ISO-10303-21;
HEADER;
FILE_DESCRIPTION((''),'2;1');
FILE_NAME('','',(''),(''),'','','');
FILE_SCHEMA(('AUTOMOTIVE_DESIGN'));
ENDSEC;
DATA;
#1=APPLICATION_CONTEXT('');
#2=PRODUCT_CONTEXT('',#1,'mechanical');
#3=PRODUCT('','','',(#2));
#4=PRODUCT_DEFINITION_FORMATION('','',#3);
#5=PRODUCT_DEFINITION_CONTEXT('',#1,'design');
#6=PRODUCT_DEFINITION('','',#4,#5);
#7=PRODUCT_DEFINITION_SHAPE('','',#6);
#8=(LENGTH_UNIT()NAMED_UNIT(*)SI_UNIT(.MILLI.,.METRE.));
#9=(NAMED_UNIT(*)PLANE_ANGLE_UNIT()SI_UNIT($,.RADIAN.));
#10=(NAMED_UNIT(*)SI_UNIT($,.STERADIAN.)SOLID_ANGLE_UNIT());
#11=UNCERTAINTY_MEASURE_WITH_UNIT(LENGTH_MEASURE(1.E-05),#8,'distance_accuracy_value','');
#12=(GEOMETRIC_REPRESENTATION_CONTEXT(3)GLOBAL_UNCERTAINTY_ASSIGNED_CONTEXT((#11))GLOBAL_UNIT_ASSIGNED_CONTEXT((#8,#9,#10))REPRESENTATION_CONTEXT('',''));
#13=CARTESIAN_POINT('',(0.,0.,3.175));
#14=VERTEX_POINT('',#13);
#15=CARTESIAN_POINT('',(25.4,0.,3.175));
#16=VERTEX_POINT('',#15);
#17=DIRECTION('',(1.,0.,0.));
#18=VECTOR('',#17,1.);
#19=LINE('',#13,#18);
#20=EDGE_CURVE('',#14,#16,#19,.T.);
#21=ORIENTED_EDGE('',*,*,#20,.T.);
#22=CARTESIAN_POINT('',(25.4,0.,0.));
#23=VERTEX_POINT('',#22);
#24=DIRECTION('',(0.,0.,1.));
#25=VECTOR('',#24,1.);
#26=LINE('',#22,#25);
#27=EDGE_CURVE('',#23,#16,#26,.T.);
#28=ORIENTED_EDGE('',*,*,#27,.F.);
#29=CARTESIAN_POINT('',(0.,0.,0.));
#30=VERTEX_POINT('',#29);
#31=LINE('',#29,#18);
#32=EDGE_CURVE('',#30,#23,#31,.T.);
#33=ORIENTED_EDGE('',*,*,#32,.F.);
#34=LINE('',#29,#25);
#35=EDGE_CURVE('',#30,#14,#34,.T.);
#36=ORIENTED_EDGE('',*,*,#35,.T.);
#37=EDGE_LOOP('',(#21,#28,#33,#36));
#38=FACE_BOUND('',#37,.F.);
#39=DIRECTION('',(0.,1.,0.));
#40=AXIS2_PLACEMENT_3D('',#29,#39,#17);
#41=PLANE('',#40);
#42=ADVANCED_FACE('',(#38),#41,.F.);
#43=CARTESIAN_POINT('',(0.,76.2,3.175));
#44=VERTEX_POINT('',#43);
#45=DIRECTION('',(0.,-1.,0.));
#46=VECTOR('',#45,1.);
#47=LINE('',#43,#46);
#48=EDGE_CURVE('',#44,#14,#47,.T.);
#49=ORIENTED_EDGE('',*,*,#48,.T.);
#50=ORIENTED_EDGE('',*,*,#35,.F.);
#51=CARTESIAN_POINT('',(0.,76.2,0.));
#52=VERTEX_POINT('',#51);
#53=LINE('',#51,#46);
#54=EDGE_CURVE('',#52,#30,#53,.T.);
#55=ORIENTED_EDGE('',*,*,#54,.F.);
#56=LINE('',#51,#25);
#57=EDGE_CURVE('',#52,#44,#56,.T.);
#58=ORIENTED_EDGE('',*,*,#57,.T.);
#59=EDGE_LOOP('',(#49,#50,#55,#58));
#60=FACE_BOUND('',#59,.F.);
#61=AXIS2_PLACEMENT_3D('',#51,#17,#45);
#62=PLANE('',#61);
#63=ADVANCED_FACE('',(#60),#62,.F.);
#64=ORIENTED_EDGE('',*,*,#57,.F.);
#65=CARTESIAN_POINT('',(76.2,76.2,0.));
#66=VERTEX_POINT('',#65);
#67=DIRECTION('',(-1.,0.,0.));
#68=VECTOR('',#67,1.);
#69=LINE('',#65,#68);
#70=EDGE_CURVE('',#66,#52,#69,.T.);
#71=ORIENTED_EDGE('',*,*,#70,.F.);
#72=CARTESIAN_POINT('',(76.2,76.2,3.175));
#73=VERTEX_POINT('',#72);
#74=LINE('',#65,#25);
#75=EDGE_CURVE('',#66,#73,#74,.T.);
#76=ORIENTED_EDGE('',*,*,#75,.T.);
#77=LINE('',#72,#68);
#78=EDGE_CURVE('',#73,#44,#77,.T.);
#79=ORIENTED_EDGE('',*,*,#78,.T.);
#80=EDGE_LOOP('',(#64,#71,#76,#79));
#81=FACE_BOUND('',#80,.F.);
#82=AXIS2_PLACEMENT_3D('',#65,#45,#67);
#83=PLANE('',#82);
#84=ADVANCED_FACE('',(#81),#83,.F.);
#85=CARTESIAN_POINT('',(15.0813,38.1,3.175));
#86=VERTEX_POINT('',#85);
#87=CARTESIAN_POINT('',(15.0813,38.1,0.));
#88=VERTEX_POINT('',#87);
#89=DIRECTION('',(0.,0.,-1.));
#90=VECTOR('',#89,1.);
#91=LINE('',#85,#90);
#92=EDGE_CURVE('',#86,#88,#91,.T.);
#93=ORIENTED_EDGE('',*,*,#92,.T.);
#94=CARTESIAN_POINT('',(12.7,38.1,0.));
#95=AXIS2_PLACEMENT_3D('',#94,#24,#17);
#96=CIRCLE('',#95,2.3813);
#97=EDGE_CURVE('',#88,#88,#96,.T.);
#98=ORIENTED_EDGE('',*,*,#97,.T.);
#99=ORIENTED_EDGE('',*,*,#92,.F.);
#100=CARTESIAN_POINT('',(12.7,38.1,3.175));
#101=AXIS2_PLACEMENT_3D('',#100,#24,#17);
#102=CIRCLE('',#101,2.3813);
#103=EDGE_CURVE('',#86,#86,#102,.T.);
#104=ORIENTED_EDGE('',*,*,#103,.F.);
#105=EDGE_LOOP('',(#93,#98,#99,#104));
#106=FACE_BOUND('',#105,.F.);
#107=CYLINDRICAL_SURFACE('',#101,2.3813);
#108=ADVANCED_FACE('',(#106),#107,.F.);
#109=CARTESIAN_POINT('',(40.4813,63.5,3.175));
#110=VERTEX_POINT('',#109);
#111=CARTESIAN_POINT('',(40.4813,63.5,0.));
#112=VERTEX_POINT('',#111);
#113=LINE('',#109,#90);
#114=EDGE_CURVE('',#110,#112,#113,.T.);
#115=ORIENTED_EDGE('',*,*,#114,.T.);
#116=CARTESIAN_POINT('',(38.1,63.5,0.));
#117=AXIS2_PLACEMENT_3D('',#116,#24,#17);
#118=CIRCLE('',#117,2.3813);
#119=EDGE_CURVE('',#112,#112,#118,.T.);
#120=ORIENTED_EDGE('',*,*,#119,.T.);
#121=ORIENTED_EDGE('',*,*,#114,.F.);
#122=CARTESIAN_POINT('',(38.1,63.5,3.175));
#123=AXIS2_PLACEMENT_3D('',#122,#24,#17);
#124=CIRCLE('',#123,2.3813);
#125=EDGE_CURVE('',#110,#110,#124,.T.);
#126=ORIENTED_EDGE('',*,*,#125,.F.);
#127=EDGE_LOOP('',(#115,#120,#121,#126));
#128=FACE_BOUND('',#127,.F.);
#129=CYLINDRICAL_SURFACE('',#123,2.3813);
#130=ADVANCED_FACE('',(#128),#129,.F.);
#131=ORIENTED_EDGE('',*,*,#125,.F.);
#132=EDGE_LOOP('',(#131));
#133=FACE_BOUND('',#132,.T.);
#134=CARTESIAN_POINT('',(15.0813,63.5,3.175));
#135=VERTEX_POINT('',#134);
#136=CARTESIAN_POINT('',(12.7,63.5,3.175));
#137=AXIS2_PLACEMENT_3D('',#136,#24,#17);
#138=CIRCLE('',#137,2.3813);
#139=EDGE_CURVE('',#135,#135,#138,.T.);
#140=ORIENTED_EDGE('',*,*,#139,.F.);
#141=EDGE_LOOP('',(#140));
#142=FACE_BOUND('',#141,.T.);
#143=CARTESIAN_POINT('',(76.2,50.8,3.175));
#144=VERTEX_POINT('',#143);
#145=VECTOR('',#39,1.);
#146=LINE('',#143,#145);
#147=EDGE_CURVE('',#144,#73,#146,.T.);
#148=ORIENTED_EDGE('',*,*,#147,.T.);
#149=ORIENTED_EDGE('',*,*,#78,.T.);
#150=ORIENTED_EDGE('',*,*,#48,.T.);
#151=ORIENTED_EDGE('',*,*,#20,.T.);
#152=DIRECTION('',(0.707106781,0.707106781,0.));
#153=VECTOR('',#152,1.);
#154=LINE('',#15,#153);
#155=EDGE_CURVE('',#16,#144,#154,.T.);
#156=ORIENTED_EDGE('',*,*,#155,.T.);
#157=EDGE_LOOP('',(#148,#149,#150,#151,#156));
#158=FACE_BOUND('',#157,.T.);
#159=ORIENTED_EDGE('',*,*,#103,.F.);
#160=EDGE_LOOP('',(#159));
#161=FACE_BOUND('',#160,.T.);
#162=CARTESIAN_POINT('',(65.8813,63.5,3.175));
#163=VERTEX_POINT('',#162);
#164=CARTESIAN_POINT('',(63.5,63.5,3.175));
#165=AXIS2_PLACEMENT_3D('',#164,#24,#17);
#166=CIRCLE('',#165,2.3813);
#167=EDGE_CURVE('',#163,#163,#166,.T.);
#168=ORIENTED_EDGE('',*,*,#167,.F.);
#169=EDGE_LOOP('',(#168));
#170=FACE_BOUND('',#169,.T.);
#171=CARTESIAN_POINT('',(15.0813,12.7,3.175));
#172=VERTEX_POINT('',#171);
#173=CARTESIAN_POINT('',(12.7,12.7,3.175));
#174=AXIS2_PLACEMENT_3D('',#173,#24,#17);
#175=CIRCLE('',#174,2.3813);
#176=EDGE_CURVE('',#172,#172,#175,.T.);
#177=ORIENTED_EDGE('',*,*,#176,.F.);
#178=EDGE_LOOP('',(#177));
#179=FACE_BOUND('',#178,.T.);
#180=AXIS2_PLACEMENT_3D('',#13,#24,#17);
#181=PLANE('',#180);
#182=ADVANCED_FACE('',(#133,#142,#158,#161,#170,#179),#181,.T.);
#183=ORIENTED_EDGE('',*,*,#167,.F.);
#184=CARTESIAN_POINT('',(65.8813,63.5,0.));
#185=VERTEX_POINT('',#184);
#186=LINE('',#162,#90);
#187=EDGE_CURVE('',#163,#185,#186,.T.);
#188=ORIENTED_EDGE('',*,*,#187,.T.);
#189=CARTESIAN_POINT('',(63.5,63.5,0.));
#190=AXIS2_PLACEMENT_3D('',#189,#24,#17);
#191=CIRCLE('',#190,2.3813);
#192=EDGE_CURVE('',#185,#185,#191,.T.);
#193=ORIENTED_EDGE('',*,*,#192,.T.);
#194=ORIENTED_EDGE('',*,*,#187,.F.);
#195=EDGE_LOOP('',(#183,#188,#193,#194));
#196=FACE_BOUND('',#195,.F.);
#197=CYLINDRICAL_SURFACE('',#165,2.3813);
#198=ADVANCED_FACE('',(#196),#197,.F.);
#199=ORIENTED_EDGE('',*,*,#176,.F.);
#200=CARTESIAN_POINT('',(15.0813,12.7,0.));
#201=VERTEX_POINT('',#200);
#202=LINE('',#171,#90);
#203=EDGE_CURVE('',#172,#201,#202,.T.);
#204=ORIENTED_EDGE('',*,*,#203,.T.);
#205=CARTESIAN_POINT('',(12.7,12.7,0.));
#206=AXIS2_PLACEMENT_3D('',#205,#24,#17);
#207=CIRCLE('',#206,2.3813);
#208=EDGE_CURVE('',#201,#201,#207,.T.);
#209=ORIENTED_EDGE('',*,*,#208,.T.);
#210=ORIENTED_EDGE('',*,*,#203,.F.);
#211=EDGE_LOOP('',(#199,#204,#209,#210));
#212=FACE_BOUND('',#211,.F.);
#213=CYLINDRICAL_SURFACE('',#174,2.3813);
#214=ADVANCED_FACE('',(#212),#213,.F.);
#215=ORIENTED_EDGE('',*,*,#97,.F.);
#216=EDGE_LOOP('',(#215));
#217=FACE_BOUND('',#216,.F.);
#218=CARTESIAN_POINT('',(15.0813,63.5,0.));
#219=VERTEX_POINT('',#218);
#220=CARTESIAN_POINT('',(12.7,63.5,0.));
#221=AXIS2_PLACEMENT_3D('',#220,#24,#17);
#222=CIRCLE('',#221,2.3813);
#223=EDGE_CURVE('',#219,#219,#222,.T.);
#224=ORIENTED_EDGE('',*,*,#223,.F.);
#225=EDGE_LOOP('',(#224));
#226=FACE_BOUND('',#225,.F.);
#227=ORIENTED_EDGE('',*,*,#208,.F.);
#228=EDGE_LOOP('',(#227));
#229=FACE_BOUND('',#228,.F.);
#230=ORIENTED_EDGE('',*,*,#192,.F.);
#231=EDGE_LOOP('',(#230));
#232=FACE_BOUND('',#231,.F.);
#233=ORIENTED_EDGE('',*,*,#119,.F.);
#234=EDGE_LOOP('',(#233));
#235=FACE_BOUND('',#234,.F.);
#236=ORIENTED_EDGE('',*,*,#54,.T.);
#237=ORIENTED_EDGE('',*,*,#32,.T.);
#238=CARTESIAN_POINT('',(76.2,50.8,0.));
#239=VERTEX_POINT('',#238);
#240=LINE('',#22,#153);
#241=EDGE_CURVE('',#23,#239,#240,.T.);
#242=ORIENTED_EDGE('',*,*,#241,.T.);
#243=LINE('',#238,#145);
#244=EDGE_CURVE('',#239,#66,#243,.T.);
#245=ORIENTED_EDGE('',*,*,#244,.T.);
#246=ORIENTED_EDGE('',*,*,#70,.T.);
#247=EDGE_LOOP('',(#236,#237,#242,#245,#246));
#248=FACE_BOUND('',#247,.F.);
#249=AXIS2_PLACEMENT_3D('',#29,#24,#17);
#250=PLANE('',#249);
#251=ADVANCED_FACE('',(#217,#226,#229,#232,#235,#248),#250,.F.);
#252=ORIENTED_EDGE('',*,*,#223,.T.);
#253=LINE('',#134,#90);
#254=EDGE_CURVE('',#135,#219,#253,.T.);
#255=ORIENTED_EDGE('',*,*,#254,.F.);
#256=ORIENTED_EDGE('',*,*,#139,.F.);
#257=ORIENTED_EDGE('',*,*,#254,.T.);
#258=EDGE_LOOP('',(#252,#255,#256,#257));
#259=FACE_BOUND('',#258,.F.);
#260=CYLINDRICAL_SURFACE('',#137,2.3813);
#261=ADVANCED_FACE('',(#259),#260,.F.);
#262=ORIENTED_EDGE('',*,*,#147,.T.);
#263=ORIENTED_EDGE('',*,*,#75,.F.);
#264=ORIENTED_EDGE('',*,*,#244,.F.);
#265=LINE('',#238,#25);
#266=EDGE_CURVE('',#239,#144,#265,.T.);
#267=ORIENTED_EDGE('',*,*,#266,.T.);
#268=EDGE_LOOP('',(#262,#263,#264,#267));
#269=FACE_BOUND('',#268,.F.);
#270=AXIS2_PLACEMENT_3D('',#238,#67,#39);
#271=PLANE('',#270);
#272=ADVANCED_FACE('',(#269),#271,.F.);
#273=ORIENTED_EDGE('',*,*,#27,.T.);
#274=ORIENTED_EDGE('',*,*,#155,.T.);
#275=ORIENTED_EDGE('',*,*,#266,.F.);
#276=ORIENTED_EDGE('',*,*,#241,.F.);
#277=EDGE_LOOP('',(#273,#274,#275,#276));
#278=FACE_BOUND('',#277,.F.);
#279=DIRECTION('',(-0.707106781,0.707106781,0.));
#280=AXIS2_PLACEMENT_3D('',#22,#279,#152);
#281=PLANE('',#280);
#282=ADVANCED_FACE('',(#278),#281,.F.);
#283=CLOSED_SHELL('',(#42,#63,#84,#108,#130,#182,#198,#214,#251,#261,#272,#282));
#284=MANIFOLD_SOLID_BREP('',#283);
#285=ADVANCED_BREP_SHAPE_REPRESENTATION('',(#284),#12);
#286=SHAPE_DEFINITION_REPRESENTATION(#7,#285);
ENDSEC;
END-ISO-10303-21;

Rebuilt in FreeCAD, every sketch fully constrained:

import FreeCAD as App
import Part
import Sketcher
Q = App.Units.Quantity

doc = App.newDocument("Part")
params = doc.addObject("Spreadsheet::Sheet", "Params")
for row, (alias, value) in enumerate([
    ("sketch1_width", "1 in"),
    ("sketch1_width2", "3 in"),
    ("pad1_length", "0.125 in"),
    ("sketch2_diameter", "0.1875 in"),
    ("linearpattern_pitch", "1 in"),
    ("linearpattern2_pitch", "1 in"),
], start=1):
    params.set(f"A{row}", alias)
    params.set(f"B{row}", "=" + value)
    params.setAlias(f"B{row}", alias)

body = doc.addObject("PartDesign::Body", "Body")

# Sketch on XY plane
sketch1 = body.newObject("Sketcher::SketchObject", "Sketch")
sketch1.AttachmentSupport = (doc.getObject("XY_Plane"), [""])
sketch1.MapMode = "FlatFace"
sketch1.addGeometry([
    Part.LineSegment(App.Vector(0, 76, 0), App.Vector(0, 0, 0)),  # 0
    Part.LineSegment(App.Vector(0, 0, 0), App.Vector(25, 0, 0)),  # 1
    Part.LineSegment(App.Vector(25, 0, 0), App.Vector(76, 51, 0)),  # 2
    Part.LineSegment(App.Vector(76, 51, 0), App.Vector(76, 76, 0)),  # 3
    Part.LineSegment(App.Vector(76, 76, 0), App.Vector(0, 76, 0)),  # 4
], False)
sketch1.addConstraint([
    Sketcher.Constraint("Coincident", 0, 2, 1, 1),
    Sketcher.Constraint("Coincident", 1, 2, 2, 1),
    Sketcher.Constraint("Coincident", 2, 2, 3, 1),
    Sketcher.Constraint("Coincident", 3, 2, 4, 1),
    Sketcher.Constraint("Coincident", 4, 2, 0, 1),
    Sketcher.Constraint("Vertical", 0),
    Sketcher.Constraint("Horizontal", 1),
    Sketcher.Constraint("Vertical", 3),
    Sketcher.Constraint("Horizontal", 4),
    Sketcher.Constraint("Coincident", 0, 2, -1, 1),
    Sketcher.Constraint("Equal", 4, 0),
    Sketcher.Constraint("Equal", 1, 3),
    Sketcher.Constraint("DistanceX", 1, 1, 1, 2, Q("1 in")),
    Sketcher.Constraint("DistanceX", 4, 2, 4, 1, Q("3 in")),
])
sketch1.setExpression("Constraints[12]", "Params.sketch1_width")
sketch1.setExpression("Constraints[13]", "Params.sketch1_width2")
pad1 = body.newObject("PartDesign::Pad", "Pad")
pad1.Profile = sketch1
pad1.setExpression("Length", "Params.pad1_length")

# Sketch on XY plane
sketch2 = body.newObject("Sketcher::SketchObject", "Sketch001")
sketch2.AttachmentSupport = (doc.getObject("XY_Plane"), [""])
sketch2.MapMode = "FlatFace"
sketch2.AttachmentOffset = App.Placement(App.Vector(0, 0, 0.125 * 25.4), App.Rotation())
sketch2.addGeometry(Part.Circle(App.Vector(12.7, 63.5, 0), App.Vector(0, 0, 1), 2.4), False)
sketch2.addConstraint([
    Sketcher.Constraint("Diameter", 0, Q("0.1875 in")),
    Sketcher.Constraint("DistanceX", -1, 1, 0, 3, Q("0.5 in")),
    Sketcher.Constraint("DistanceY", -1, 1, 0, 3, Q("2.5 in")),
])
sketch2.setExpression("Constraints[0]", "Params.sketch2_diameter")
pocket1 = body.newObject("PartDesign::Pocket", "Pocket")
pocket1.Profile = sketch2
pocket1.Type = "UpToFirst"
doc.recompute()

linearpattern = body.newObject("PartDesign::LinearPattern", "LinearPattern")
linearpattern.Originals = [pocket1]
linearpattern.Direction = (doc.getObject("X_Axis"), [""])
linearpattern.Mode = "offset"
linearpattern.setExpression("Offset", "Params.linearpattern_pitch")
linearpattern.Occurrences = 4
body.Tip = linearpattern
doc.recompute()

linearpattern2 = body.newObject("PartDesign::LinearPattern", "LinearPattern001")
linearpattern2.Originals = [pocket1]
linearpattern2.Direction = (doc.getObject("Y_Axis"), [""])
linearpattern2.Mode = "offset"
linearpattern2.setExpression("Offset", "Params.linearpattern2_pitch")
linearpattern2.Occurrences = 4
linearpattern2.Reversed = True
body.Tip = linearpattern2

doc.recompute()
